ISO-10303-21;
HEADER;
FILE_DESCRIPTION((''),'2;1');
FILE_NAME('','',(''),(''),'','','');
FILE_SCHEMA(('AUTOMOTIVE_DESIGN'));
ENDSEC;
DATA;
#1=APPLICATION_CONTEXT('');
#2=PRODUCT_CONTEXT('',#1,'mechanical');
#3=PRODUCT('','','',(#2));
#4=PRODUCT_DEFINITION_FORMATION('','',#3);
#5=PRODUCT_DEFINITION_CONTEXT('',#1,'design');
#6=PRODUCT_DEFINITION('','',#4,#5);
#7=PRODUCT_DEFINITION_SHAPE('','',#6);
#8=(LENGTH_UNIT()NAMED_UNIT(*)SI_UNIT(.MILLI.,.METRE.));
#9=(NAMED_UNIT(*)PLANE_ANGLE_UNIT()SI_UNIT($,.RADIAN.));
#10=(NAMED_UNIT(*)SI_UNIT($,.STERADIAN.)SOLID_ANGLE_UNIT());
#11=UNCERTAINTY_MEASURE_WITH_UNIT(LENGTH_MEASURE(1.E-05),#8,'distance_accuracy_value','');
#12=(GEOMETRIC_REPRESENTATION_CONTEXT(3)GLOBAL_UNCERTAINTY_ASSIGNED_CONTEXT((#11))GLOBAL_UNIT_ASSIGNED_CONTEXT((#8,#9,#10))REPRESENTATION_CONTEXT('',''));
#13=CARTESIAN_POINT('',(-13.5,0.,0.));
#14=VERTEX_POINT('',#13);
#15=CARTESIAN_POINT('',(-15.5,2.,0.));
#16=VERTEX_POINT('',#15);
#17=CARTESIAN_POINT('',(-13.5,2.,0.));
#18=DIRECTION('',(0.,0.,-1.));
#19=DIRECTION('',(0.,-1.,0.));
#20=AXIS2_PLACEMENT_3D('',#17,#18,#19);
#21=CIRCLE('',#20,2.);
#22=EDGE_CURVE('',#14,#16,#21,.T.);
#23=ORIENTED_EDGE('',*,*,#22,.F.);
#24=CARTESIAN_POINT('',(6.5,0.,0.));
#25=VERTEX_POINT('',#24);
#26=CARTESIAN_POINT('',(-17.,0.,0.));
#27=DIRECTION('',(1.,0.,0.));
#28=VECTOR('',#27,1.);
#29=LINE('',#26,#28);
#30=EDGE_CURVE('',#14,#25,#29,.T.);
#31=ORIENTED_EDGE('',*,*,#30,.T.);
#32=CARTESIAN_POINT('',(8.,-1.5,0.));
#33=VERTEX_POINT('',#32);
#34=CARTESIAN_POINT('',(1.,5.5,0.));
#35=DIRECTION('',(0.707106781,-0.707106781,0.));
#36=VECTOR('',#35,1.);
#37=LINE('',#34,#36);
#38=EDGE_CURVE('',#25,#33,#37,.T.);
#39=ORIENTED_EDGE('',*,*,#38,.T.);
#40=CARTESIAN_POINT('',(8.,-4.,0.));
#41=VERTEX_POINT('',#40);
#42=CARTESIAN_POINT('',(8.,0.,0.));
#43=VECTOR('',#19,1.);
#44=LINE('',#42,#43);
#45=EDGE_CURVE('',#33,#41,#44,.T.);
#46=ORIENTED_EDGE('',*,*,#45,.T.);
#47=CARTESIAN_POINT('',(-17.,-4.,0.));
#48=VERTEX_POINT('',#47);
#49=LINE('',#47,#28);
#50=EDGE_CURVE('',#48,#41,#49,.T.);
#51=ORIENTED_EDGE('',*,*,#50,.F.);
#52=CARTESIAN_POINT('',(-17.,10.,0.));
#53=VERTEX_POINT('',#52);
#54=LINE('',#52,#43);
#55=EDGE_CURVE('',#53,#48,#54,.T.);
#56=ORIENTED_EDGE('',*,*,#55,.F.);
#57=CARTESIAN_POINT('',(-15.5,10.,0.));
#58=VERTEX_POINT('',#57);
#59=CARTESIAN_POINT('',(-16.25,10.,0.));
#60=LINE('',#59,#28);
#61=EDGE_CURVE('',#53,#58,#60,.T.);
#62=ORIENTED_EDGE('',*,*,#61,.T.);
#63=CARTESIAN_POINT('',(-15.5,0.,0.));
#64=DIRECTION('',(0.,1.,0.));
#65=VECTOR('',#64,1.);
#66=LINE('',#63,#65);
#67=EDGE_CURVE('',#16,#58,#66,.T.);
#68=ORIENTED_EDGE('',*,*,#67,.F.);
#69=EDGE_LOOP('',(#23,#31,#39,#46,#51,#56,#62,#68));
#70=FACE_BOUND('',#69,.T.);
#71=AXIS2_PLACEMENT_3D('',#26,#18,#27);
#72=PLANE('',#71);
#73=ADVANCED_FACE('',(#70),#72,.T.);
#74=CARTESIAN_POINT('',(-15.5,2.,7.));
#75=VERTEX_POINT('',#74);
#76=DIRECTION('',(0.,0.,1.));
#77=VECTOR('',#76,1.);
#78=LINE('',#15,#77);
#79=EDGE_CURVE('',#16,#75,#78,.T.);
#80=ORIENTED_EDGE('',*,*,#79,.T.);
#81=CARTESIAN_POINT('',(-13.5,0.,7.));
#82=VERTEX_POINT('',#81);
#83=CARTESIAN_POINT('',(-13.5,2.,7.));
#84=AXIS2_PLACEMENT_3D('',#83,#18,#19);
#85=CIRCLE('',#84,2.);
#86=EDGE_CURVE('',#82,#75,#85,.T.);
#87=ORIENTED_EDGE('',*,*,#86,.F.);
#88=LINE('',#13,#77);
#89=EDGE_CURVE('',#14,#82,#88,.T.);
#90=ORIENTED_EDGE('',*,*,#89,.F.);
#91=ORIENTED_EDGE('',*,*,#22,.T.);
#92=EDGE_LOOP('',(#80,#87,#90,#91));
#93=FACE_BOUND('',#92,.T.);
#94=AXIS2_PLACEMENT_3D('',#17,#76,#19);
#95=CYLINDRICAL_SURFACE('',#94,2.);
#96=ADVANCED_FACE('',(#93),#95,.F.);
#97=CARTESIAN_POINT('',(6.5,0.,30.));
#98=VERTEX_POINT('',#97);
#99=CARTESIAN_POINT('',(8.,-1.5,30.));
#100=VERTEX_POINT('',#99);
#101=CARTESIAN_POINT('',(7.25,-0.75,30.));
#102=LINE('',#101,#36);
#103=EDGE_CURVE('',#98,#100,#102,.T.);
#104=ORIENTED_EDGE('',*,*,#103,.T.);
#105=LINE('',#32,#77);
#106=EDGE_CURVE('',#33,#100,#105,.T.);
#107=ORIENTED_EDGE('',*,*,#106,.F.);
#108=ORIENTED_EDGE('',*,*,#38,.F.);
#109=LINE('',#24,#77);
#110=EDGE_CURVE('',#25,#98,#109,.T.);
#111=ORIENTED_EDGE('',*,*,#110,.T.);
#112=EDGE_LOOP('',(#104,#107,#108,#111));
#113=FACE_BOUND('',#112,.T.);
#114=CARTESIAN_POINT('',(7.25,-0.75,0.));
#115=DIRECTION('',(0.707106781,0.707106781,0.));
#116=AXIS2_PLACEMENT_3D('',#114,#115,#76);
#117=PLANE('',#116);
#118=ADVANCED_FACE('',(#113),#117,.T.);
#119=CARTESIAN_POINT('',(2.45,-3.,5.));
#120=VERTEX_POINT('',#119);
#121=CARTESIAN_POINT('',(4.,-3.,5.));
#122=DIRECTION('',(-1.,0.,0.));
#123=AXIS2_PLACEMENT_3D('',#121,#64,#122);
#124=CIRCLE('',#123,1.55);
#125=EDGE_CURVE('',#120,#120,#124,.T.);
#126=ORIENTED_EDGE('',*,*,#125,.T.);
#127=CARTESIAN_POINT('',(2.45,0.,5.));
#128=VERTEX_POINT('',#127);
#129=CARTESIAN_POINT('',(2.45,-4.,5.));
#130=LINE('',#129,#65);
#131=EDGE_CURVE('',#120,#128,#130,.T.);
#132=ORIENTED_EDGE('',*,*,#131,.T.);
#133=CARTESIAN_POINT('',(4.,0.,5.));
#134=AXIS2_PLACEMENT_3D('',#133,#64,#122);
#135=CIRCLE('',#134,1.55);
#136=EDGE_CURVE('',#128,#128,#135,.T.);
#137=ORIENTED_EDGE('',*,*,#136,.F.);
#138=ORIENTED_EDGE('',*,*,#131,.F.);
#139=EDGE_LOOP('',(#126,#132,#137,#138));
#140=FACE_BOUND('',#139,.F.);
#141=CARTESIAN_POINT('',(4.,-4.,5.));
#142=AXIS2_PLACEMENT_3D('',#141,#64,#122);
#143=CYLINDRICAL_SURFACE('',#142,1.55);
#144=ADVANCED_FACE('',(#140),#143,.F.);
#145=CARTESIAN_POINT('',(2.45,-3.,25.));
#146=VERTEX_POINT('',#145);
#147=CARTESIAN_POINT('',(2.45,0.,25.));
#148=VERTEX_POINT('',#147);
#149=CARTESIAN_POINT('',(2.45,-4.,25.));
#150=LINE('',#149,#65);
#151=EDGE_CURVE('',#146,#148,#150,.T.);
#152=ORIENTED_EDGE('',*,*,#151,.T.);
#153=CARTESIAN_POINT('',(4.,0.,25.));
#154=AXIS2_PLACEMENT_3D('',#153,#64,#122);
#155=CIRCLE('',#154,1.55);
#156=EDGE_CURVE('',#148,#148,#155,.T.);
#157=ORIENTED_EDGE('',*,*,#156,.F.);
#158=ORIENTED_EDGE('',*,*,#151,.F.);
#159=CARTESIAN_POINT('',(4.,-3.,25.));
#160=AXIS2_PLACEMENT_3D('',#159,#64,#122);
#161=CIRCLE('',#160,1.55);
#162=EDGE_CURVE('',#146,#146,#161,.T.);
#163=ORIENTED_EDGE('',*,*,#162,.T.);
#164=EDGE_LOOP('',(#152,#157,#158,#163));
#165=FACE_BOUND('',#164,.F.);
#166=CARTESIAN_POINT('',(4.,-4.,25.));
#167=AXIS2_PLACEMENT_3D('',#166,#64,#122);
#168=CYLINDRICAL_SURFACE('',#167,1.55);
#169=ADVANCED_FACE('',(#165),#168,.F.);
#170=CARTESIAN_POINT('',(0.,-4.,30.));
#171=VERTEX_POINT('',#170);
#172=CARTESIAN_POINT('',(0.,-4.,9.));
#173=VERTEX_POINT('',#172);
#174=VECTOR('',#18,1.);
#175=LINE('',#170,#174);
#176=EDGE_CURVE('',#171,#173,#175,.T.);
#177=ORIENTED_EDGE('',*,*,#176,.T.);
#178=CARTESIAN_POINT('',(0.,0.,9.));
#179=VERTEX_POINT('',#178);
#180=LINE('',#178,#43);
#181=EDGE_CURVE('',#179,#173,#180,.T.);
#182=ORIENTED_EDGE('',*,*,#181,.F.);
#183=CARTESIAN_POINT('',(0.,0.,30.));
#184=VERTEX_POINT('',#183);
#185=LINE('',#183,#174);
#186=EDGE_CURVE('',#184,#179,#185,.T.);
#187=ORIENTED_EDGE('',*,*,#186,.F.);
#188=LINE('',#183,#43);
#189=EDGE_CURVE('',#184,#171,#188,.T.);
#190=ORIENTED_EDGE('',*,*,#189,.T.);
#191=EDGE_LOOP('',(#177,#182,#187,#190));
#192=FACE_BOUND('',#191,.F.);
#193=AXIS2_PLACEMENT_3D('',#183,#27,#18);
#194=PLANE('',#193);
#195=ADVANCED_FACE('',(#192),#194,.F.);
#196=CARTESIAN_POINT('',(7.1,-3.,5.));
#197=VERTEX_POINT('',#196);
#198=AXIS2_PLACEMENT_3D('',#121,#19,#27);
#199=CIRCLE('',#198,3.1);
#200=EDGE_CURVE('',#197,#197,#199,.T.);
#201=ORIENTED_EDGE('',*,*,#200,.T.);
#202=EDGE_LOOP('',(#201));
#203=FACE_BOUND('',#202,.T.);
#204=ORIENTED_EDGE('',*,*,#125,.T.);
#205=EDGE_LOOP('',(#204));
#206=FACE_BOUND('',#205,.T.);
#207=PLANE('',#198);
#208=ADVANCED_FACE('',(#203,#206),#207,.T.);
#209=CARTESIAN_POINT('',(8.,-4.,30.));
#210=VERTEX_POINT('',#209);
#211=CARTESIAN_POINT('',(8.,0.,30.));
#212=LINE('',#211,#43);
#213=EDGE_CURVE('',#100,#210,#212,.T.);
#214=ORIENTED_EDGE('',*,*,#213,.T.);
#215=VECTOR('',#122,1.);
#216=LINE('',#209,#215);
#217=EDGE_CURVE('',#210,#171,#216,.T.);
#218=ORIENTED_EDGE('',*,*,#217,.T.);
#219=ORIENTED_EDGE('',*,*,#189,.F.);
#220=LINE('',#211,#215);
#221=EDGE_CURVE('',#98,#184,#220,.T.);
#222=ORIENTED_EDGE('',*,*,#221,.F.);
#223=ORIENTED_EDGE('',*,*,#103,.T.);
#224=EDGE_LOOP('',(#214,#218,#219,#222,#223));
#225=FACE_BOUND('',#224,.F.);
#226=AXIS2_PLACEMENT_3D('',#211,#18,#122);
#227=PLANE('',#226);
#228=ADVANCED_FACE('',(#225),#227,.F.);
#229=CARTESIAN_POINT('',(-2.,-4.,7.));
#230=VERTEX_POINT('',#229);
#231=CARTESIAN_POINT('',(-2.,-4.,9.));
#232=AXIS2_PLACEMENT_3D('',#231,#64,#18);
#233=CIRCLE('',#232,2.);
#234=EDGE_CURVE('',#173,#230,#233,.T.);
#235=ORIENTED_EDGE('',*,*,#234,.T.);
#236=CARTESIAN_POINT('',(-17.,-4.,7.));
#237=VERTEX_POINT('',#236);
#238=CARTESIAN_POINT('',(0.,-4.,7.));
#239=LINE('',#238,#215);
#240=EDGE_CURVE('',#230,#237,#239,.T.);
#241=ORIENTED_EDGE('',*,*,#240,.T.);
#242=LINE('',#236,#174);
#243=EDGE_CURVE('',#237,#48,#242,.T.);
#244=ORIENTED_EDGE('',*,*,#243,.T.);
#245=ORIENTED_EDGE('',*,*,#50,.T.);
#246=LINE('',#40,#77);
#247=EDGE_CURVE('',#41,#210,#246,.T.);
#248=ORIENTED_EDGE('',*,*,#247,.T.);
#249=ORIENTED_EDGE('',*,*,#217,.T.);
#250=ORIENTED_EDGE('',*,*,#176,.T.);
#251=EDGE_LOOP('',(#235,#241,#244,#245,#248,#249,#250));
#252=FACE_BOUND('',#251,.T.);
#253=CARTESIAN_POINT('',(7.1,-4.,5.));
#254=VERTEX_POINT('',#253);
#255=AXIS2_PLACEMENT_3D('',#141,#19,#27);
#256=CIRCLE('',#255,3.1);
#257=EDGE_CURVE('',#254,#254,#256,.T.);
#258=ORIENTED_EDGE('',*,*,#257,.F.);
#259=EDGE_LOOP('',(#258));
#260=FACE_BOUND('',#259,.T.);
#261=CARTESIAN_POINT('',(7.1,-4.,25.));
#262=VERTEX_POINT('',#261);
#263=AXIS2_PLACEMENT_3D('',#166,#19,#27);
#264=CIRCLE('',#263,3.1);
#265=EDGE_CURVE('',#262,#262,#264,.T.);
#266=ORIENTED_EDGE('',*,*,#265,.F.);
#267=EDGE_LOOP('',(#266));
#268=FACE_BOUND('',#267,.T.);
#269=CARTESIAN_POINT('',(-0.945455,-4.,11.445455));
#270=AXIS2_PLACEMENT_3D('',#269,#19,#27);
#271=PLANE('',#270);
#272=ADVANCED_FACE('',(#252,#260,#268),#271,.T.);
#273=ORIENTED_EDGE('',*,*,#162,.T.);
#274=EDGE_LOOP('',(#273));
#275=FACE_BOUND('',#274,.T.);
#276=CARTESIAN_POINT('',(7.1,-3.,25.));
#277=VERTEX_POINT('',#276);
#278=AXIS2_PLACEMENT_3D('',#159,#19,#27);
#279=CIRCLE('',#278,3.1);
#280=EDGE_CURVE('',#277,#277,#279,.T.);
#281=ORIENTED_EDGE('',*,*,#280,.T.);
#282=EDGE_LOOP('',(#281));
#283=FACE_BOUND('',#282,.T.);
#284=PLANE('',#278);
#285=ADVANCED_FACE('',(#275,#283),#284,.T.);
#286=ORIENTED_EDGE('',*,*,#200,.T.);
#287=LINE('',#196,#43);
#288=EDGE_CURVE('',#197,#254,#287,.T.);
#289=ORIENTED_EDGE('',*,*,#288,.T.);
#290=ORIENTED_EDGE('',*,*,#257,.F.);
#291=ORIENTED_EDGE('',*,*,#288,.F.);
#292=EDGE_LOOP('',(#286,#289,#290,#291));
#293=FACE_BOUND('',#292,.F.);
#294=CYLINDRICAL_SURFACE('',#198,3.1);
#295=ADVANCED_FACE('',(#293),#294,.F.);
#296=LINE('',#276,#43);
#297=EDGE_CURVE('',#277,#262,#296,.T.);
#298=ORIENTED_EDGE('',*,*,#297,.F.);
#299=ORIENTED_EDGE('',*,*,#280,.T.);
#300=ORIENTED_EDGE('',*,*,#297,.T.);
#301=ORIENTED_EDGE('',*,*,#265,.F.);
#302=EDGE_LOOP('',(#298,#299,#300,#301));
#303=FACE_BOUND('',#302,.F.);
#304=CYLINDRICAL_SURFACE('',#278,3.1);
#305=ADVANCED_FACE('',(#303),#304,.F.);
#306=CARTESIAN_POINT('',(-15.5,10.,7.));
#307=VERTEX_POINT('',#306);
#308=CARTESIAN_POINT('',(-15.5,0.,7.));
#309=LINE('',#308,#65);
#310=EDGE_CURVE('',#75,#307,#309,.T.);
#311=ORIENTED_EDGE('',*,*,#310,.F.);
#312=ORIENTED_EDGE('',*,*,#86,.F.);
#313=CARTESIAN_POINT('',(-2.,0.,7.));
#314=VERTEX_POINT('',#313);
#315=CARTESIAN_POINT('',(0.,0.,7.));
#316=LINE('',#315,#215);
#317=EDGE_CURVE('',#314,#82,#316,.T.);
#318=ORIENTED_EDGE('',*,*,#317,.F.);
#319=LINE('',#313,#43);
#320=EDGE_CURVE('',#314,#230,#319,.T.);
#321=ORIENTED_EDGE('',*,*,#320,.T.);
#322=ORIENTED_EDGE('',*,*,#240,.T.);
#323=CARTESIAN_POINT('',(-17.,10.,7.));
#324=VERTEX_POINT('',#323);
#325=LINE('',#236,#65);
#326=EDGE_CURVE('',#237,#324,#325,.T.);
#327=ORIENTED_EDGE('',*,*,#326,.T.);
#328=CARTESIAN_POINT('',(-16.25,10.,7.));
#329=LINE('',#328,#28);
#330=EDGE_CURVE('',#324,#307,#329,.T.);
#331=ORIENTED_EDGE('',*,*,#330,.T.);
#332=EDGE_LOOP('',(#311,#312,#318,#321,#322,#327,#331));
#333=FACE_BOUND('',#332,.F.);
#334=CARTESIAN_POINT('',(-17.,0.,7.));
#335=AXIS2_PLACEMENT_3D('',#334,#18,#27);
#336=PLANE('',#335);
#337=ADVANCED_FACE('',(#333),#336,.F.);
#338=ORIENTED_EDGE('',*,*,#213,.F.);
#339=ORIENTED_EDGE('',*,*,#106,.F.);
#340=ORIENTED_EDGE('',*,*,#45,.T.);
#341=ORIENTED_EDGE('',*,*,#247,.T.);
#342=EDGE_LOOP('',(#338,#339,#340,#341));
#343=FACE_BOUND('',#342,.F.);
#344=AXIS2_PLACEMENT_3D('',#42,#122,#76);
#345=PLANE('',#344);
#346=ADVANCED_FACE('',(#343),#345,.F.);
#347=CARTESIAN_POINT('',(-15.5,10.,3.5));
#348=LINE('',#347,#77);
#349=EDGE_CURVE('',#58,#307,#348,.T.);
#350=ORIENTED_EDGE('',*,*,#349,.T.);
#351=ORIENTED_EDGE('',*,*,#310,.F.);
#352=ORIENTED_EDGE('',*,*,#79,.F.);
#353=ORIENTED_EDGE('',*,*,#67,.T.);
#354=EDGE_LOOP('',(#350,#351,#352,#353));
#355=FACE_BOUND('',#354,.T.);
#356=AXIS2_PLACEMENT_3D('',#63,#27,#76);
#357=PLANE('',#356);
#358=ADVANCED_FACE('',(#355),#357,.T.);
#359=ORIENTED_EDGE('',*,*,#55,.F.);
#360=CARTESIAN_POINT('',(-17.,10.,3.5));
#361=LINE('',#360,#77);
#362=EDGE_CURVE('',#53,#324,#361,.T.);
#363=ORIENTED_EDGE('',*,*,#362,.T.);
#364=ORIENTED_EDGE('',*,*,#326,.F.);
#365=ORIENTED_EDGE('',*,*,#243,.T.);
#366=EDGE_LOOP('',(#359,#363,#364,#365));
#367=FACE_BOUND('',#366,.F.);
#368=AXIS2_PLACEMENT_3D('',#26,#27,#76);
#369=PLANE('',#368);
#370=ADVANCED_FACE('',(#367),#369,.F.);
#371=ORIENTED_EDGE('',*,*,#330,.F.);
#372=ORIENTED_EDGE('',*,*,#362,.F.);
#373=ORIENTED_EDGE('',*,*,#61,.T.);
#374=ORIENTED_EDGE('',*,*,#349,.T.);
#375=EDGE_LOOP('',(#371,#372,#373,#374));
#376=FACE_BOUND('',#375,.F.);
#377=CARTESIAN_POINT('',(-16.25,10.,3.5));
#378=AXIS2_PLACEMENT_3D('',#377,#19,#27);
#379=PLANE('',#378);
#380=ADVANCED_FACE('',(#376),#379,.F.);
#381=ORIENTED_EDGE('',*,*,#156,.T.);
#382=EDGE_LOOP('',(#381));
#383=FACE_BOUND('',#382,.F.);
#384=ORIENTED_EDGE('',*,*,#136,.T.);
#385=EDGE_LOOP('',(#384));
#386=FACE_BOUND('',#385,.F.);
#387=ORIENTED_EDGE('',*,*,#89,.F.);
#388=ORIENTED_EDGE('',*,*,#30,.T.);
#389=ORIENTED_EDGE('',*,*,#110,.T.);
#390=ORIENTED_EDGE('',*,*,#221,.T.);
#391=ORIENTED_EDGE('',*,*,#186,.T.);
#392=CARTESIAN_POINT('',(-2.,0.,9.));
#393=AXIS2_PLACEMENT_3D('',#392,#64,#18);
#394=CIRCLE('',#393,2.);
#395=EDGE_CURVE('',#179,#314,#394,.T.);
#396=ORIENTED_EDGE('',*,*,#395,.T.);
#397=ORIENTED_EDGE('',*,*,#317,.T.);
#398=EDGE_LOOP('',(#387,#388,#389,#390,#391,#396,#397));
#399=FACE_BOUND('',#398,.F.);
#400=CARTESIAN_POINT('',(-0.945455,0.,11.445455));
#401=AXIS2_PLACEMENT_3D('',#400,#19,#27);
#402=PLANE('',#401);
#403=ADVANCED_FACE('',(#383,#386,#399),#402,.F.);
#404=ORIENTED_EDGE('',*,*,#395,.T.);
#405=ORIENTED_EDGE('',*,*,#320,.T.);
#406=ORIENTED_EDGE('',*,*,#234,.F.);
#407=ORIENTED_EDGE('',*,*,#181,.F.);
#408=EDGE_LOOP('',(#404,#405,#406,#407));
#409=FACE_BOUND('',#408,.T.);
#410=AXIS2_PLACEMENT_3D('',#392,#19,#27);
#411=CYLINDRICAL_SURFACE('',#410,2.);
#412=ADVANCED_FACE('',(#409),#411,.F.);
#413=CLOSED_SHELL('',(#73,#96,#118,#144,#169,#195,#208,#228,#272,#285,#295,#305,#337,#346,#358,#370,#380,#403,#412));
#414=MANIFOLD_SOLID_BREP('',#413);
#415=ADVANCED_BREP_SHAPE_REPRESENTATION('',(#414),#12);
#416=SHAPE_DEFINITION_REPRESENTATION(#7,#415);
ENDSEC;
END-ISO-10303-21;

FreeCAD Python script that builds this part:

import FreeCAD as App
import Part
import Sketcher
Q = App.Units.Quantity


def edges_at(feature, points):
    """Names of the edges that pass closest to the given points."""
    edges = feature.Shape.Edges
    near = lambda p: min(range(len(edges)), key=lambda i: edges[i].distToShape(Part.Vertex(*p))[0])
    return sorted({f"Edge{near(p) + 1}" for p in points})

doc = App.newDocument("Part")
body = doc.addObject("PartDesign::Body", "Body")

# Sketch on XZ plane
sketch1 = doc.addObject("Sketcher::SketchObject", "Sketch")
body.addObject(sketch1)
sketch1.AttachmentSupport = (doc.XZ_Plane, [""])
sketch1.MapMode = "FlatFace"
sketch1.addGeometry([
    Part.LineSegment(App.Vector(-17, 0, 0), App.Vector(8, 0, 0)),  # 0
    Part.LineSegment(App.Vector(8, 0, 0), App.Vector(8, 30, 0)),  # 1
    Part.LineSegment(App.Vector(8, 30, 0), App.Vector(0, 30, 0)),  # 2
    Part.LineSegment(App.Vector(0, 30, 0), App.Vector(0, 7, 0)),  # 3
    Part.LineSegment(App.Vector(0, 7, 0), App.Vector(-17, 7, 0)),  # 4
    Part.LineSegment(App.Vector(-17, 7, 0), App.Vector(-17, 0, 0)),  # 5
], False)
sketch1.addConstraint([
    Sketcher.Constraint("Coincident", 0, 2, 1, 1),
    Sketcher.Constraint("Coincident", 1, 2, 2, 1),
    Sketcher.Constraint("Coincident", 2, 2, 3, 1),
    Sketcher.Constraint("Coincident", 3, 2, 4, 1),
    Sketcher.Constraint("Coincident", 4, 2, 5, 1),
    Sketcher.Constraint("Coincident", 5, 2, 0, 1),
    Sketcher.Constraint("Horizontal", 0),
    Sketcher.Constraint("Vertical", 1),
    Sketcher.Constraint("Horizontal", 2),
    Sketcher.Constraint("Vertical", 3),
    Sketcher.Constraint("Horizontal", 4),
    Sketcher.Constraint("Vertical", 5),
    Sketcher.Constraint("PointOnObject", 0, 2, -1),
    Sketcher.Constraint("PointOnObject", 2, 2, -2),
    Sketcher.Constraint("DistanceX", 0, 1, 0, 2, Q("25 mm")),
    Sketcher.Constraint("DistanceX", 2, 2, 2, 1, Q("8 mm")),
    Sketcher.Constraint("DistanceY", 1, 1, 1, 2, Q("30 mm")),
    Sketcher.Constraint("DistanceY", 3, 2, 3, 1, Q("23 mm")),
])
pad1 = doc.addObject("PartDesign::Pad", "Pad")
body.addObject(pad1)
pad1.Profile = sketch1
pad1.Length = 4

# Sketch on XZ plane
sketch2 = doc.addObject("Sketcher::SketchObject", "Sketch001")
body.addObject(sketch2)
sketch2.AttachmentSupport = (doc.XZ_Plane, [""])
sketch2.MapMode = "FlatFace"
sketch2.AttachmentOffset = App.Placement(App.Vector(0, 0, 4), App.Rotation())
sketch2.addGeometry([
    Part.Circle(App.Vector(4, 25, 0), App.Vector(0, 0, 1), 1.6),
    Part.Circle(App.Vector(4, 5, 0), App.Vector(0, 0, 1), 1.6),
], False)
sketch2.addConstraint([
    Sketcher.Constraint("Equal", 0, 1),
    Sketcher.Constraint("Vertical", 0, 3, 1, 3),
    Sketcher.Constraint("Diameter", 0, Q("3.1 mm")),
    Sketcher.Constraint("DistanceX", -1, 1, 0, 3, Q("4 mm")),
    Sketcher.Constraint("DistanceY", -1, 1, 0, 3, Q("25 mm")),
    Sketcher.Constraint("DistanceY", -1, 1, 1, 3, Q("5 mm")),
])
doc.recompute()
hole = doc.addObject("PartDesign::Hole", "Hole")
body.addObject(hole)
hole.Profile = sketch2
hole.ThreadType = "None"
hole.Diameter = 3.1
hole.DepthType = "ThroughAll"
hole.HoleCutType = "Counterbore"
hole.HoleCutDiameter = 6.2
hole.HoleCutDepth = 1

# Sketch on XZ plane
sketch3 = doc.addObject("Sketcher::SketchObject", "Sketch002")
body.addObject(sketch3)
sketch3.AttachmentSupport = (doc.XZ_Plane, [""])
sketch3.MapMode = "FlatFace"
sketch3.addGeometry([
    Part.LineSegment(App.Vector(-17, 7, 0), App.Vector(-17, 0, 0)),
    Part.LineSegment(App.Vector(-17, 0, 0), App.Vector(-15.5, 0, 0)),
    Part.LineSegment(App.Vector(-15.5, 0, 0), App.Vector(-15.5, 7, 0)),
    Part.LineSegment(App.Vector(-15.5, 7, 0), App.Vector(-17, 7, 0)),
], False)
sketch3.addConstraint([
    Sketcher.Constraint("Coincident", 0, 2, 1, 1),
    Sketcher.Constraint("Coincident", 1, 2, 2, 1),
    Sketcher.Constraint("Coincident", 2, 2, 3, 1),
    Sketcher.Constraint("Coincident", 3, 2, 0, 1),
    Sketcher.Constraint("Vertical", 0),
    Sketcher.Constraint("Horizontal", 1),
    Sketcher.Constraint("Vertical", 2),
    Sketcher.Constraint("Horizontal", 3),
    Sketcher.Constraint("PointOnObject", 0, 2, -1),
    Sketcher.Constraint("DistanceY", 0, 2, 0, 1, Q("7 mm")),
    Sketcher.Constraint("DistanceX", 1, 1, 1, 2, Q("1.5 mm")),
    Sketcher.Constraint("DistanceX", 0, 2, -1, 1, Q("17 mm")),
])
pad2 = doc.addObject("PartDesign::Pad", "Pad001")
body.addObject(pad2)
pad2.Profile = sketch3
pad2.Length = 10
pad2.Reversed = True
doc.recompute()

chamfer = doc.addObject("PartDesign::Chamfer", "Chamfer")
body.addObject(chamfer)
chamfer.Base = (pad2, edges_at(pad2, [(8, 0, 15)]))
chamfer.Size = 1.5
doc.recompute()

fillet = doc.addObject("PartDesign::Fillet", "Fillet")
body.addObject(fillet)
fillet.Base = (chamfer, edges_at(chamfer, [(-15.5, 0, 3.5), (0, -2, 7)]))
fillet.Radius = 2

doc.recompute()
